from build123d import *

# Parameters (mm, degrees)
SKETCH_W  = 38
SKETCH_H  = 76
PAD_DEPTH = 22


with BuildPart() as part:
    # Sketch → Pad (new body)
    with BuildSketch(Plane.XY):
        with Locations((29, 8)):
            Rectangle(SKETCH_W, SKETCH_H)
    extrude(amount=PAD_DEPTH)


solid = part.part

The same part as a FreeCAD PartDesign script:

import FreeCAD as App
import Part
import Sketcher
from FreeCAD import Vector


def add_polygon(sketch, points):
    """Adds a closed chain of lines whose ends are joined by coincident constraints."""
    first, n = sketch.GeometryCount, len(points)
    for a, b in zip(points, points[1:] + points[:1]):
        sketch.addGeometry(Part.LineSegment(App.Vector(*a, 0), App.Vector(*b, 0)), False)
    for i in range(n):
        sketch.addConstraint(Sketcher.Constraint("Coincident", first + i, 2, first + (i + 1) % n, 1))

doc = App.newDocument("Part")
body = doc.addObject("PartDesign::Body", "Body")

# Sketch on XY plane
sketch1 = doc.addObject("Sketcher::SketchObject", "Sketch")
body.addObject(sketch1)
sketch1.AttachmentSupport = (doc.XY_Plane, [""])
sketch1.MapMode = "FlatFace"
add_polygon(sketch1, [(10, 46), (10, -30), (48, -30), (48, 46)])  # lines 0-3
sketch1.addConstraint(Sketcher.Constraint("Vertical", 0))
sketch1.addConstraint(Sketcher.Constraint("Horizontal", 1))
sketch1.addConstraint(Sketcher.Constraint("Vertical", 2))
sketch1.addConstraint(Sketcher.Constraint("Horizontal", 3))
sketch1.addConstraint(Sketcher.Constraint("DistanceX", 1, 1, 1, 2, 38.0))
sketch1.addConstraint(Sketcher.Constraint("DistanceY", 0, 2, 0, 1, 76.0))
sketch1.addConstraint(Sketcher.Constraint("DistanceX", -1, 1, 0, 2, 10.0))
sketch1.addConstraint(Sketcher.Constraint("DistanceY", 0, 2, -1, 1, 30.0))
pad1 = doc.addObject("PartDesign::Pad", "Pad")
body.addObject(pad1)
pad1.Profile = sketch1
pad1.Length = 22

doc.recompute()
